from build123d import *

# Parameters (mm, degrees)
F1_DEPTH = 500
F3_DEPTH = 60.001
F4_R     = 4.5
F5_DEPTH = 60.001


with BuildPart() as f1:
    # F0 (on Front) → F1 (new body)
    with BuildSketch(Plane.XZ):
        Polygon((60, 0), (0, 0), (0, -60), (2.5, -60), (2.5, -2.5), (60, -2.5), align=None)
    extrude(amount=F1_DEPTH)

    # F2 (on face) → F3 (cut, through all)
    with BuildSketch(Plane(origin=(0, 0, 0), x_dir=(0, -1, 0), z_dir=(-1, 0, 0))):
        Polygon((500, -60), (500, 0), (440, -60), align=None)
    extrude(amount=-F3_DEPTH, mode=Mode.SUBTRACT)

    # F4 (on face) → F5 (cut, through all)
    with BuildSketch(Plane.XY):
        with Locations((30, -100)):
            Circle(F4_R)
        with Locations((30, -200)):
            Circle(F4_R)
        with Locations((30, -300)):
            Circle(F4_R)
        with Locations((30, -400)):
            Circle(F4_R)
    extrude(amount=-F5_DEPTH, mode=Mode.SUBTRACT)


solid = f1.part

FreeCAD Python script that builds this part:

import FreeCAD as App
import Part
import Sketcher

V = App.Vector
Q = App.Units.Quantity


def add_polygon(sketch, points):
    """Adds a closed chain of lines whose ends are joined by coincident constraints."""
    first, n = sketch.GeometryCount, len(points)
    for a, b in zip(points, points[1:] + points[:1]):
        sketch.addGeometry(Part.LineSegment(App.Vector(*a, 0), App.Vector(*b, 0)), False)
    for i in range(n):
        sketch.addConstraint(Sketcher.Constraint("Coincident", first + i, 2, first + (i + 1) % n, 1))

doc = App.newDocument("Part")
body = doc.addObject("PartDesign::Body", "Body")

# Sketch on XZ plane
sketch1 = body.newObject("Sketcher::SketchObject", "Sketch")
sketch1.AttachmentSupport = (doc.getObject("XZ_Plane"), [""])
sketch1.MapMode = "FlatFace"
add_polygon(sketch1, [(60, 0), (0, 0), (0, -60), (2.5, -60), (2.5, -2.5), (60, -2.5)])  # lines 0-5
sketch1.addConstraint(Sketcher.Constraint("Horizontal", 0))
sketch1.addConstraint(Sketcher.Constraint("Vertical", 1))
sketch1.addConstraint(Sketcher.Constraint("Horizontal", 2))
sketch1.addConstraint(Sketcher.Constraint("Vertical", 3))
sketch1.addConstraint(Sketcher.Constraint("Horizontal", 4))
sketch1.addConstraint(Sketcher.Constraint("Vertical", 5))
sketch1.addConstraint(Sketcher.Constraint("Coincident", 0, 2, -1, 1))
sketch1.addConstraint(Sketcher.Constraint("Equal", 0, 1))
sketch1.addConstraint(Sketcher.Constraint("Equal", 4, 3))
sketch1.addConstraint(Sketcher.Constraint("DistanceX", 0, 2, 0, 1, Q("60 mm")))
sketch1.addConstraint(Sketcher.Constraint("DistanceX", 2, 1, 2, 2, Q("2.5 mm")))
pad1 = body.newObject("PartDesign::Pad", "Pad")
pad1.Profile = sketch1
pad1.Length = 500

# Sketch on YZ plane
sketch2 = body.newObject("Sketcher::SketchObject", "Sketch001")
sketch2.AttachmentSupport = (doc.getObject("YZ_Plane"), [""])
sketch2.MapMode = "FlatFace"
add_polygon(sketch2, [(-500, -60), (-500, 0), (-440, -60)])  # lines 0-2
sketch2.addConstraint(Sketcher.Constraint("Vertical", 0))
sketch2.addConstraint(Sketcher.Constraint("Horizontal", 2))
sketch2.addConstraint(Sketcher.Constraint("PointOnObject", 0, 2, -1))
sketch2.addConstraint(Sketcher.Constraint("Equal", 2, 0))
sketch2.addConstraint(Sketcher.Constraint("DistanceX", 2, 2, 2, 1, Q("60 mm")))
sketch2.addConstraint(Sketcher.Constraint("DistanceX", 0, 2, -1, 1, Q("500 mm")))
pocket1 = body.newObject("PartDesign::Pocket", "Pocket")
pocket1.Profile = sketch2
pocket1.Type = "ThroughAll"
pocket1.Reversed = True

# Sketch on XY plane
sketch3 = body.newObject("Sketcher::SketchObject", "Sketch002")
sketch3.AttachmentSupport = (doc.getObject("XY_Plane"), [""])
sketch3.MapMode = "FlatFace"
sketch3.addGeometry(Part.Circle(V(30, -100, 0), V(0, 0, 1), 4.5), False)
sketch3.addGeometry(Part.Circle(V(30, -200, 0), V(0, 0, 1), 4.5), False)
sketch3.addGeometry(Part.Circle(V(30, -300, 0), V(0, 0, 1), 4.5), False)
sketch3.addGeometry(Part.Circle(V(30, -400, 0), V(0, 0, 1), 4.5), False)
sketch3.addConstraint(Sketcher.Constraint("Equal", 0, 1))
sketch3.addConstraint(Sketcher.Constraint("Equal", 1, 2))
sketch3.addConstraint(Sketcher.Constraint("Equal", 2, 3))
sketch3.addConstraint(Sketcher.Constraint("Vertical", 0, 3, 1, 3))
sketch3.addConstraint(Sketcher.Constraint("Vertical", 1, 3, 2, 3))
sketch3.addConstraint(Sketcher.Constraint("Vertical", 2, 3, 3, 3))
sketch3.addConstraint(Sketcher.Constraint("Diameter", 0, Q("9 mm")))
sketch3.addConstraint(Sketcher.Constraint("DistanceX", -1, 1, 0, 3, Q("30 mm")))
sketch3.addConstraint(Sketcher.Constraint("DistanceY", 0, 3, -1, 1, Q("100 mm")))
sketch3.addConstraint(Sketcher.Constraint("DistanceY", 1, 3, -1, 1, Q("200 mm")))
sketch3.addConstraint(Sketcher.Constraint("DistanceY", 2, 3, -1, 1, Q("300 mm")))
sketch3.addConstraint(Sketcher.Constraint("DistanceY", 3, 3, -1, 1, Q("400 mm")))
pocket2 = body.newObject("PartDesign::Pocket", "Pocket001")
pocket2.Profile = sketch3
pocket2.Type = "ThroughAll"

doc.recompute()
